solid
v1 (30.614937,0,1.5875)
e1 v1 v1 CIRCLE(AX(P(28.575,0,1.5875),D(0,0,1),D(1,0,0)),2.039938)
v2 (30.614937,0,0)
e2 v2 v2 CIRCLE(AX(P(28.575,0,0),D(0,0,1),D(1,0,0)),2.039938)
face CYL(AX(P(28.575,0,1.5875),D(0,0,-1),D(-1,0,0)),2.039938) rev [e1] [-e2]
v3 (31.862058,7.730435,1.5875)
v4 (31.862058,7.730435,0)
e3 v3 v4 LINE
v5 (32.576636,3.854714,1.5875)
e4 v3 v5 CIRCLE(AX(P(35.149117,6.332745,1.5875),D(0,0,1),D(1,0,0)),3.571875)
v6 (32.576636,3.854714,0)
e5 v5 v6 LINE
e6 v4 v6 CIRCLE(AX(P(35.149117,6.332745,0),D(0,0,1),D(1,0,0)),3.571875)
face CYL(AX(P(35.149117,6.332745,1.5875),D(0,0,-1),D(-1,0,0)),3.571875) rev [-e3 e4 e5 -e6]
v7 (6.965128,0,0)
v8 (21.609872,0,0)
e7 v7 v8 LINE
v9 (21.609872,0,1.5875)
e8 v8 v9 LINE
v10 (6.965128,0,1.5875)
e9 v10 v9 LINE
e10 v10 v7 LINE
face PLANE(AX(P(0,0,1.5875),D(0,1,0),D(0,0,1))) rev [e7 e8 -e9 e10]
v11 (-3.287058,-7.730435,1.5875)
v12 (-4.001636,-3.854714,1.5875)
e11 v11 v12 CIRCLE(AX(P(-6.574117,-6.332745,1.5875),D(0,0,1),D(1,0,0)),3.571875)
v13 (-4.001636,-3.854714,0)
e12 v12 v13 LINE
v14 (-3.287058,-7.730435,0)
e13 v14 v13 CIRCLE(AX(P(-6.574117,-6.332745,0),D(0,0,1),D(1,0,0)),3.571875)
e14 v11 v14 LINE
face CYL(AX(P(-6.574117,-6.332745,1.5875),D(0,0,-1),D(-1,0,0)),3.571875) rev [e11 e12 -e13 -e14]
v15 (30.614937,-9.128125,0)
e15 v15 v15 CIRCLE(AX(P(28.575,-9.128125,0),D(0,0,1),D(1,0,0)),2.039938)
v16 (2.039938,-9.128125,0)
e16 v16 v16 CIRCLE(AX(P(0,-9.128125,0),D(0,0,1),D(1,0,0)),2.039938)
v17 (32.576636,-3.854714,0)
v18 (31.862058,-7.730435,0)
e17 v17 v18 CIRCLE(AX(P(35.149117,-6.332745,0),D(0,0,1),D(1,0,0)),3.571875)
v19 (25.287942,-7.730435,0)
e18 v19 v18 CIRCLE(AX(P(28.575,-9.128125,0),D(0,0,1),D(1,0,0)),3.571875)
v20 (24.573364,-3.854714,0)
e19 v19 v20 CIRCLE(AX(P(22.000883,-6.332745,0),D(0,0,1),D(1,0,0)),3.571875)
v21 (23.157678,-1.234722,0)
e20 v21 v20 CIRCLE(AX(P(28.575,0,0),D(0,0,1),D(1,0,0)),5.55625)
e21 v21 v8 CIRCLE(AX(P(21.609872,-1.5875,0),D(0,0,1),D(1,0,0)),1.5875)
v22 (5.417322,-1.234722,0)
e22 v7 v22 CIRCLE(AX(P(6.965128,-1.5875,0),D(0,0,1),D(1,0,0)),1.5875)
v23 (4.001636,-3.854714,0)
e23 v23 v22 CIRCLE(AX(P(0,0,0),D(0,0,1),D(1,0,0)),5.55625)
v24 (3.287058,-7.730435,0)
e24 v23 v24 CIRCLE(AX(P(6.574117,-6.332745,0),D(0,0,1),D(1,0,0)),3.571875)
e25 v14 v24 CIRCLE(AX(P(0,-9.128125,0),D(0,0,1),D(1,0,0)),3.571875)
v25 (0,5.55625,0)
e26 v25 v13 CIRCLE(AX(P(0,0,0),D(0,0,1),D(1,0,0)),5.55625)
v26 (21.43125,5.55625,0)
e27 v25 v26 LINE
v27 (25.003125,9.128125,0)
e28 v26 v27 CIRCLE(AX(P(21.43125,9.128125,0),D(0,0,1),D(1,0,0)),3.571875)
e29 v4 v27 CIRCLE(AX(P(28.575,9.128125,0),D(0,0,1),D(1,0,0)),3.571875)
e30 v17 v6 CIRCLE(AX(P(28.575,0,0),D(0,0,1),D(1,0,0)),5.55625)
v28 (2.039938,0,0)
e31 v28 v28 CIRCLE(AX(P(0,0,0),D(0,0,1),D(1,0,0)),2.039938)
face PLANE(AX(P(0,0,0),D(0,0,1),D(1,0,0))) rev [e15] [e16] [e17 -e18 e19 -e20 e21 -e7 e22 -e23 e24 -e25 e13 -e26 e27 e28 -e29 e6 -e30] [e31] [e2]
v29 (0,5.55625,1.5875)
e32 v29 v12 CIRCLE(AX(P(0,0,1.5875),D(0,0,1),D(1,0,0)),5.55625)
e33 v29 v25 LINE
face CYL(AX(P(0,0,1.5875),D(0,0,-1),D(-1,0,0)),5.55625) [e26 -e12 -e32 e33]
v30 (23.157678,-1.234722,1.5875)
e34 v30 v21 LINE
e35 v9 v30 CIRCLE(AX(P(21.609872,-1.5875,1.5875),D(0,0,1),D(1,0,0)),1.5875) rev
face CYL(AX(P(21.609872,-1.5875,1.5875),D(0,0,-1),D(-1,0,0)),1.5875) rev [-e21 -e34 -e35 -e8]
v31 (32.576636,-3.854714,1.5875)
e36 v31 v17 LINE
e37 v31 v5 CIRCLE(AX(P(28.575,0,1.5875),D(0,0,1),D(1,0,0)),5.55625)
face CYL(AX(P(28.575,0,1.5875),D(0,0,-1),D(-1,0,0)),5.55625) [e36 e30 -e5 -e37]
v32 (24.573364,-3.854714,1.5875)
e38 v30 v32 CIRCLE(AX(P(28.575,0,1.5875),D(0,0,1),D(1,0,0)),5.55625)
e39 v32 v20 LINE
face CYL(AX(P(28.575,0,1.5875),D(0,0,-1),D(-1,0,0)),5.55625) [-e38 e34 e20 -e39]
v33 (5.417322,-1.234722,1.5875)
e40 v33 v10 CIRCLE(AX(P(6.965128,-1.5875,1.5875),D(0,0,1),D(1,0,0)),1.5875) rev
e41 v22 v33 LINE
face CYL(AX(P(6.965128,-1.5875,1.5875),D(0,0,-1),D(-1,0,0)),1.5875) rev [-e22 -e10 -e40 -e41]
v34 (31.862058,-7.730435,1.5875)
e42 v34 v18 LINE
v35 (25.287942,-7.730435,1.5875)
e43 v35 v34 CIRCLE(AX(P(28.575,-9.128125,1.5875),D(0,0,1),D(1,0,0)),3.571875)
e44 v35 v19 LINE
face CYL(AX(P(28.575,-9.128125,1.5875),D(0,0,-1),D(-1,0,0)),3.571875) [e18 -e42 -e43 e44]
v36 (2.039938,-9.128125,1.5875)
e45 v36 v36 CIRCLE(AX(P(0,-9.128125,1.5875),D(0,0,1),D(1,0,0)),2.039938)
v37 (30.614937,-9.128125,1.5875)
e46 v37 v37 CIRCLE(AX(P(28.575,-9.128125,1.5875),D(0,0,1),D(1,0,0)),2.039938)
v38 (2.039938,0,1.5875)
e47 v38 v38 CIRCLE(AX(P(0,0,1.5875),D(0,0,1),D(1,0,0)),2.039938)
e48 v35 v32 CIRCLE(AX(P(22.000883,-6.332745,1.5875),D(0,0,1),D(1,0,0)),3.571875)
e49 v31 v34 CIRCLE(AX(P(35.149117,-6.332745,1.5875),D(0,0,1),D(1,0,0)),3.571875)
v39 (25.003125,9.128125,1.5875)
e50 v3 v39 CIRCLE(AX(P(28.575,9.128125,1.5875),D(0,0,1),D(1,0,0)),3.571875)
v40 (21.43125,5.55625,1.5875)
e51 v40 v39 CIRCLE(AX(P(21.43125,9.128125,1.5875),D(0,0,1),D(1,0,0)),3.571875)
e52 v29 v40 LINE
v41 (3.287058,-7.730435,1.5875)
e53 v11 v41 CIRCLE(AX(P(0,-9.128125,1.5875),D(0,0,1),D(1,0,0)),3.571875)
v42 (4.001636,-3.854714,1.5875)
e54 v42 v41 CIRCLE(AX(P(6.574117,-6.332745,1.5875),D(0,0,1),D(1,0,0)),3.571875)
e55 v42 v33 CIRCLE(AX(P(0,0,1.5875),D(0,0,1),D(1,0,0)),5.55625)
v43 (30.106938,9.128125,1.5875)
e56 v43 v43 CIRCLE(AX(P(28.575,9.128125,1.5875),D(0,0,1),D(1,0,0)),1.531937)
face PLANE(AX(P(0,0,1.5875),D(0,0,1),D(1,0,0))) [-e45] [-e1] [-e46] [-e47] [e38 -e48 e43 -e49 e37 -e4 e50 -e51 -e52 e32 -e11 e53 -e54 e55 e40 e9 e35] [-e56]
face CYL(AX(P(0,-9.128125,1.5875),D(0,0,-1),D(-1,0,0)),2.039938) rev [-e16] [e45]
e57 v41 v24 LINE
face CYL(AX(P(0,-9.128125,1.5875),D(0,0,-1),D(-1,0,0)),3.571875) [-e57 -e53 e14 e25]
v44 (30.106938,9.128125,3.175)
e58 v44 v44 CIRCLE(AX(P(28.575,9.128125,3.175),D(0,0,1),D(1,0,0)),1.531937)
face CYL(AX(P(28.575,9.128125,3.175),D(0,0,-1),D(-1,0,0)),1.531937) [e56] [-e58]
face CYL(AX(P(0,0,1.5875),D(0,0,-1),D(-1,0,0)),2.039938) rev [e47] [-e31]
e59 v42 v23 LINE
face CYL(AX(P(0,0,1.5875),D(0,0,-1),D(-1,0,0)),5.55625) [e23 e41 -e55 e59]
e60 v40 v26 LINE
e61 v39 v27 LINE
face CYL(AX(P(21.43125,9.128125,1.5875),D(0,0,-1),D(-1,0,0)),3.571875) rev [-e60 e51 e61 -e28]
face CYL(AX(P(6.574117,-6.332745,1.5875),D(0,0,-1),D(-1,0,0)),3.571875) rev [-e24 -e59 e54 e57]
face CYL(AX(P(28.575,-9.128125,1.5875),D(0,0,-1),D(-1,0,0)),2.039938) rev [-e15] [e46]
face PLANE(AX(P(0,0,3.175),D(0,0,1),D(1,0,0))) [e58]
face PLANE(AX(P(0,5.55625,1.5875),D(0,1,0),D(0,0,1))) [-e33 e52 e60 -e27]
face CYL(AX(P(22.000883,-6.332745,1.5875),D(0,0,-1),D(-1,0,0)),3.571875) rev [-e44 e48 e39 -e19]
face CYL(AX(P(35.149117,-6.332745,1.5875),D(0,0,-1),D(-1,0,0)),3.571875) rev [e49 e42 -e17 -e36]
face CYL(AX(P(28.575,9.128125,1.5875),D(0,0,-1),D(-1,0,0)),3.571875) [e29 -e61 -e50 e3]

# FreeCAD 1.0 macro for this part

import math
import FreeCAD as App
import Part
import Sketcher
from FreeCAD import Vector
Q = App.Units.Quantity


def edges_at(feature, points):
    """Names of the edges that pass closest to the given points."""
    edges = feature.Shape.Edges
    near = lambda p: min(range(len(edges)), key=lambda i: edges[i].distToShape(Part.Vertex(*p))[0])
    return sorted({f"Edge{near(p) + 1}" for p in points})

doc = App.newDocument("Part")
body = doc.addObject("PartDesign::Body", "Body")

sketch1 = body.newObject("Sketcher::SketchObject", "Sketch")
sketch1.AttachmentSupport = (doc.getObject("XY_Plane"), [""])
sketch1.MapMode = "FlatFace"
sketch1.addGeometry([
    Part.ArcOfCircle(Part.Circle(Vector(0, 0, 0), Vector(0, 0, 1), 5.6), math.radians(90), math.radians(224)),
    Part.ArcOfCircle(Part.Circle(Vector(-6.6, -6.3, 0), Vector(0, 0, 1), 3.6), math.radians(-23), math.radians(44)),
    Part.ArcOfCircle(Part.Circle(Vector(0, -9.1, 0), Vector(0, 0, 1), 3.6), math.radians(157), math.radians(383)),
    Part.ArcOfCircle(Part.Circle(Vector(6.6, -6.3, 0), Vector(0, 0, 1), 3.6), math.radians(136), math.radians(203)),
    Part.ArcOfCircle(Part.Circle(Vector(0, 0, 0), Vector(0, 0, 1), 5.6), math.radians(-44), math.radians(0)),
    Part.LineSegment(Vector(5.6, 0, 0), Vector(23, 0, 0)),
    Part.ArcOfCircle(Part.Circle(Vector(28.6, 0, 0), Vector(0, 0, 1), 5.6), math.radians(-180), math.radians(-136)),
    Part.ArcOfCircle(Part.Circle(Vector(22, -6.3, 0), Vector(0, 0, 1), 3.6), math.radians(-23), math.radians(44)),
    Part.ArcOfCircle(Part.Circle(Vector(28.6, -9.1, 0), Vector(0, 0, 1), 3.6), math.radians(157), math.radians(383)),
    Part.ArcOfCircle(Part.Circle(Vector(35.1, -6.3, 0), Vector(0, 0, 1), 3.6), math.radians(136), math.radians(203)),
    Part.ArcOfCircle(Part.Circle(Vector(28.6, 0, 0), Vector(0, 0, 1), 5.6), math.radians(-44), math.radians(44)),
    Part.ArcOfCircle(Part.Circle(Vector(35.1, 6.3, 0), Vector(0, 0, 1), 3.6), math.radians(157), math.radians(224)),
    Part.ArcOfCircle(Part.Circle(Vector(28.6, 9.1, 0), Vector(0, 0, 1), 3.6), math.radians(-23), math.radians(180)),
    Part.ArcOfCircle(Part.Circle(Vector(21.4, 9.1, 0), Vector(0, 0, 1), 3.6), math.radians(-90), math.radians(0)),
    Part.LineSegment(Vector(21.4, 5.6, 0), Vector(0, 5.6, 0)),
    Part.Circle(Vector(0, -9.1, 0), Vector(0, 0, 1), 2),
    Part.Circle(Vector(28.6, -9.1, 0), Vector(0, 0, 1), 2),
    Part.Circle(Vector(0, 0, 0), Vector(0, 0, 1), 2),
    Part.Circle(Vector(28.6, 0, 0), Vector(0, 0, 1), 2),
    Part.Circle(Vector(28.6, 9.1, 0), Vector(0, 0, 1), 1.5),
], False)
sketch1.addConstraint([
    Sketcher.Constraint("Tangent", 0, 2, 1, 2),
    Sketcher.Constraint("Tangent", 1, 1, 2, 1),
    Sketcher.Constraint("Tangent", 2, 2, 3, 2),
    Sketcher.Constraint("Tangent", 3, 1, 4, 1),
    Sketcher.Constraint("Coincident", 4, 2, 5, 1),
    Sketcher.Constraint("Coincident", 5, 2, 6, 1),
    Sketcher.Constraint("Tangent", 6, 2, 7, 2),
    Sketcher.Constraint("Tangent", 7, 1, 8, 1),
    Sketcher.Constraint("Tangent", 8, 2, 9, 2),
    Sketcher.Constraint("Tangent", 9, 1, 10, 1),
    Sketcher.Constraint("Tangent", 10, 2, 11, 2),
    Sketcher.Constraint("Tangent", 11, 1, 12, 1),
    Sketcher.Constraint("Tangent", 12, 2, 13, 2),
    Sketcher.Constraint("Tangent", 13, 1, 14, 1),
    Sketcher.Constraint("Tangent", 14, 2, 0, 1),
    Sketcher.Constraint("Horizontal", 5),
    Sketcher.Constraint("Horizontal", 14),
    Sketcher.Constraint("Coincident", 0, 3, -1, 1),
    Sketcher.Constraint("Coincident", 4, 3, -1, 1),
    Sketcher.Constraint("Coincident", 17, 3, -1, 1),
    Sketcher.Constraint("Coincident", 10, 3, 6, 3),
    Sketcher.Constraint("Coincident", 15, 3, 2, 3),
    Sketcher.Constraint("Coincident", 16, 3, 8, 3),
    Sketcher.Constraint("Coincident", 18, 3, 6, 3),
    Sketcher.Constraint("Coincident", 19, 3, 12, 3),
    Sketcher.Constraint("Equal", 1, 2),
    Sketcher.Constraint("Equal", 2, 3),
    Sketcher.Constraint("Equal", 0, 4),
    Sketcher.Constraint("Equal", 4, 6),
    Sketcher.Constraint("Equal", 3, 7),
    Sketcher.Constraint("Equal", 7, 8),
    Sketcher.Constraint("Equal", 8, 9),
    Sketcher.Constraint("Equal", 6, 10),
    Sketcher.Constraint("Equal", 9, 11),
    Sketcher.Constraint("Equal", 11, 12),
    Sketcher.Constraint("Equal", 12, 13),
    Sketcher.Constraint("Equal", 15, 16),
    Sketcher.Constraint("Equal", 16, 17),
    Sketcher.Constraint("Equal", 17, 18),
    Sketcher.Constraint("Symmetric", 9, 3, 11, 3, -1),
    Sketcher.Constraint("PointOnObject", 2, 3, -2),
    Sketcher.Constraint("PointOnObject", 4, 2, -1),
    Sketcher.Constraint("Horizontal", 3, 3, 7, 3),
    Sketcher.Constraint("Horizontal", 2, 3, 8, 3),
    Sketcher.Constraint("Horizontal", 12, 3, 13, 3),
    Sketcher.Constraint("Vertical", 10, 3, 12, 3),
    Sketcher.Constraint("Radius", 0, Q("0.21875 in")),
    Sketcher.Constraint("Radius", 1, Q("0.140625 in")),
    Sketcher.Constraint("DistanceX", 5, 1, 5, 2, Q("0.6875 in")),
    Sketcher.Constraint("Diameter", 15, Q("4.079875 mm")),
    Sketcher.Constraint("Diameter", 19, Q("3.063875 mm")),
])
pad1 = body.newObject("PartDesign::Pad", "Pad")
pad1.Profile = sketch1
pad1.Length = Q("0.0625 in")

sketch2 = body.newObject("Sketcher::SketchObject", "Sketch001")
sketch2.AttachmentSupport = (doc.getObject("XY_Plane"), [""])
sketch2.MapMode = "FlatFace"
sketch2.addGeometry(Part.Circle(Vector(28.6, 9.1, 0), Vector(0, 0, 1), 1.5), False)
sketch2.addConstraint([
    Sketcher.Constraint("DistanceX", -1, 1, 0, 3, Q("1.125 in")),
    Sketcher.Constraint("DistanceY", -1, 1, 0, 3, Q("0.359375 in")),
    Sketcher.Constraint("Diameter", 0, Q("3.063875 mm")),
])
pad2 = body.newObject("PartDesign::Pad", "Pad001")
pad2.Profile = sketch2
pad2.Length = Q("0.125 in")
doc.recompute()

fillet = body.newObject("PartDesign::Fillet", "Fillet")
fillet.Base = (pad2, edges_at(pad2, [(23.019, 0, 0.794), (5.556, 0, 0.794)]))
fillet.Radius = Q("0.0625 in")

doc.recompute()
